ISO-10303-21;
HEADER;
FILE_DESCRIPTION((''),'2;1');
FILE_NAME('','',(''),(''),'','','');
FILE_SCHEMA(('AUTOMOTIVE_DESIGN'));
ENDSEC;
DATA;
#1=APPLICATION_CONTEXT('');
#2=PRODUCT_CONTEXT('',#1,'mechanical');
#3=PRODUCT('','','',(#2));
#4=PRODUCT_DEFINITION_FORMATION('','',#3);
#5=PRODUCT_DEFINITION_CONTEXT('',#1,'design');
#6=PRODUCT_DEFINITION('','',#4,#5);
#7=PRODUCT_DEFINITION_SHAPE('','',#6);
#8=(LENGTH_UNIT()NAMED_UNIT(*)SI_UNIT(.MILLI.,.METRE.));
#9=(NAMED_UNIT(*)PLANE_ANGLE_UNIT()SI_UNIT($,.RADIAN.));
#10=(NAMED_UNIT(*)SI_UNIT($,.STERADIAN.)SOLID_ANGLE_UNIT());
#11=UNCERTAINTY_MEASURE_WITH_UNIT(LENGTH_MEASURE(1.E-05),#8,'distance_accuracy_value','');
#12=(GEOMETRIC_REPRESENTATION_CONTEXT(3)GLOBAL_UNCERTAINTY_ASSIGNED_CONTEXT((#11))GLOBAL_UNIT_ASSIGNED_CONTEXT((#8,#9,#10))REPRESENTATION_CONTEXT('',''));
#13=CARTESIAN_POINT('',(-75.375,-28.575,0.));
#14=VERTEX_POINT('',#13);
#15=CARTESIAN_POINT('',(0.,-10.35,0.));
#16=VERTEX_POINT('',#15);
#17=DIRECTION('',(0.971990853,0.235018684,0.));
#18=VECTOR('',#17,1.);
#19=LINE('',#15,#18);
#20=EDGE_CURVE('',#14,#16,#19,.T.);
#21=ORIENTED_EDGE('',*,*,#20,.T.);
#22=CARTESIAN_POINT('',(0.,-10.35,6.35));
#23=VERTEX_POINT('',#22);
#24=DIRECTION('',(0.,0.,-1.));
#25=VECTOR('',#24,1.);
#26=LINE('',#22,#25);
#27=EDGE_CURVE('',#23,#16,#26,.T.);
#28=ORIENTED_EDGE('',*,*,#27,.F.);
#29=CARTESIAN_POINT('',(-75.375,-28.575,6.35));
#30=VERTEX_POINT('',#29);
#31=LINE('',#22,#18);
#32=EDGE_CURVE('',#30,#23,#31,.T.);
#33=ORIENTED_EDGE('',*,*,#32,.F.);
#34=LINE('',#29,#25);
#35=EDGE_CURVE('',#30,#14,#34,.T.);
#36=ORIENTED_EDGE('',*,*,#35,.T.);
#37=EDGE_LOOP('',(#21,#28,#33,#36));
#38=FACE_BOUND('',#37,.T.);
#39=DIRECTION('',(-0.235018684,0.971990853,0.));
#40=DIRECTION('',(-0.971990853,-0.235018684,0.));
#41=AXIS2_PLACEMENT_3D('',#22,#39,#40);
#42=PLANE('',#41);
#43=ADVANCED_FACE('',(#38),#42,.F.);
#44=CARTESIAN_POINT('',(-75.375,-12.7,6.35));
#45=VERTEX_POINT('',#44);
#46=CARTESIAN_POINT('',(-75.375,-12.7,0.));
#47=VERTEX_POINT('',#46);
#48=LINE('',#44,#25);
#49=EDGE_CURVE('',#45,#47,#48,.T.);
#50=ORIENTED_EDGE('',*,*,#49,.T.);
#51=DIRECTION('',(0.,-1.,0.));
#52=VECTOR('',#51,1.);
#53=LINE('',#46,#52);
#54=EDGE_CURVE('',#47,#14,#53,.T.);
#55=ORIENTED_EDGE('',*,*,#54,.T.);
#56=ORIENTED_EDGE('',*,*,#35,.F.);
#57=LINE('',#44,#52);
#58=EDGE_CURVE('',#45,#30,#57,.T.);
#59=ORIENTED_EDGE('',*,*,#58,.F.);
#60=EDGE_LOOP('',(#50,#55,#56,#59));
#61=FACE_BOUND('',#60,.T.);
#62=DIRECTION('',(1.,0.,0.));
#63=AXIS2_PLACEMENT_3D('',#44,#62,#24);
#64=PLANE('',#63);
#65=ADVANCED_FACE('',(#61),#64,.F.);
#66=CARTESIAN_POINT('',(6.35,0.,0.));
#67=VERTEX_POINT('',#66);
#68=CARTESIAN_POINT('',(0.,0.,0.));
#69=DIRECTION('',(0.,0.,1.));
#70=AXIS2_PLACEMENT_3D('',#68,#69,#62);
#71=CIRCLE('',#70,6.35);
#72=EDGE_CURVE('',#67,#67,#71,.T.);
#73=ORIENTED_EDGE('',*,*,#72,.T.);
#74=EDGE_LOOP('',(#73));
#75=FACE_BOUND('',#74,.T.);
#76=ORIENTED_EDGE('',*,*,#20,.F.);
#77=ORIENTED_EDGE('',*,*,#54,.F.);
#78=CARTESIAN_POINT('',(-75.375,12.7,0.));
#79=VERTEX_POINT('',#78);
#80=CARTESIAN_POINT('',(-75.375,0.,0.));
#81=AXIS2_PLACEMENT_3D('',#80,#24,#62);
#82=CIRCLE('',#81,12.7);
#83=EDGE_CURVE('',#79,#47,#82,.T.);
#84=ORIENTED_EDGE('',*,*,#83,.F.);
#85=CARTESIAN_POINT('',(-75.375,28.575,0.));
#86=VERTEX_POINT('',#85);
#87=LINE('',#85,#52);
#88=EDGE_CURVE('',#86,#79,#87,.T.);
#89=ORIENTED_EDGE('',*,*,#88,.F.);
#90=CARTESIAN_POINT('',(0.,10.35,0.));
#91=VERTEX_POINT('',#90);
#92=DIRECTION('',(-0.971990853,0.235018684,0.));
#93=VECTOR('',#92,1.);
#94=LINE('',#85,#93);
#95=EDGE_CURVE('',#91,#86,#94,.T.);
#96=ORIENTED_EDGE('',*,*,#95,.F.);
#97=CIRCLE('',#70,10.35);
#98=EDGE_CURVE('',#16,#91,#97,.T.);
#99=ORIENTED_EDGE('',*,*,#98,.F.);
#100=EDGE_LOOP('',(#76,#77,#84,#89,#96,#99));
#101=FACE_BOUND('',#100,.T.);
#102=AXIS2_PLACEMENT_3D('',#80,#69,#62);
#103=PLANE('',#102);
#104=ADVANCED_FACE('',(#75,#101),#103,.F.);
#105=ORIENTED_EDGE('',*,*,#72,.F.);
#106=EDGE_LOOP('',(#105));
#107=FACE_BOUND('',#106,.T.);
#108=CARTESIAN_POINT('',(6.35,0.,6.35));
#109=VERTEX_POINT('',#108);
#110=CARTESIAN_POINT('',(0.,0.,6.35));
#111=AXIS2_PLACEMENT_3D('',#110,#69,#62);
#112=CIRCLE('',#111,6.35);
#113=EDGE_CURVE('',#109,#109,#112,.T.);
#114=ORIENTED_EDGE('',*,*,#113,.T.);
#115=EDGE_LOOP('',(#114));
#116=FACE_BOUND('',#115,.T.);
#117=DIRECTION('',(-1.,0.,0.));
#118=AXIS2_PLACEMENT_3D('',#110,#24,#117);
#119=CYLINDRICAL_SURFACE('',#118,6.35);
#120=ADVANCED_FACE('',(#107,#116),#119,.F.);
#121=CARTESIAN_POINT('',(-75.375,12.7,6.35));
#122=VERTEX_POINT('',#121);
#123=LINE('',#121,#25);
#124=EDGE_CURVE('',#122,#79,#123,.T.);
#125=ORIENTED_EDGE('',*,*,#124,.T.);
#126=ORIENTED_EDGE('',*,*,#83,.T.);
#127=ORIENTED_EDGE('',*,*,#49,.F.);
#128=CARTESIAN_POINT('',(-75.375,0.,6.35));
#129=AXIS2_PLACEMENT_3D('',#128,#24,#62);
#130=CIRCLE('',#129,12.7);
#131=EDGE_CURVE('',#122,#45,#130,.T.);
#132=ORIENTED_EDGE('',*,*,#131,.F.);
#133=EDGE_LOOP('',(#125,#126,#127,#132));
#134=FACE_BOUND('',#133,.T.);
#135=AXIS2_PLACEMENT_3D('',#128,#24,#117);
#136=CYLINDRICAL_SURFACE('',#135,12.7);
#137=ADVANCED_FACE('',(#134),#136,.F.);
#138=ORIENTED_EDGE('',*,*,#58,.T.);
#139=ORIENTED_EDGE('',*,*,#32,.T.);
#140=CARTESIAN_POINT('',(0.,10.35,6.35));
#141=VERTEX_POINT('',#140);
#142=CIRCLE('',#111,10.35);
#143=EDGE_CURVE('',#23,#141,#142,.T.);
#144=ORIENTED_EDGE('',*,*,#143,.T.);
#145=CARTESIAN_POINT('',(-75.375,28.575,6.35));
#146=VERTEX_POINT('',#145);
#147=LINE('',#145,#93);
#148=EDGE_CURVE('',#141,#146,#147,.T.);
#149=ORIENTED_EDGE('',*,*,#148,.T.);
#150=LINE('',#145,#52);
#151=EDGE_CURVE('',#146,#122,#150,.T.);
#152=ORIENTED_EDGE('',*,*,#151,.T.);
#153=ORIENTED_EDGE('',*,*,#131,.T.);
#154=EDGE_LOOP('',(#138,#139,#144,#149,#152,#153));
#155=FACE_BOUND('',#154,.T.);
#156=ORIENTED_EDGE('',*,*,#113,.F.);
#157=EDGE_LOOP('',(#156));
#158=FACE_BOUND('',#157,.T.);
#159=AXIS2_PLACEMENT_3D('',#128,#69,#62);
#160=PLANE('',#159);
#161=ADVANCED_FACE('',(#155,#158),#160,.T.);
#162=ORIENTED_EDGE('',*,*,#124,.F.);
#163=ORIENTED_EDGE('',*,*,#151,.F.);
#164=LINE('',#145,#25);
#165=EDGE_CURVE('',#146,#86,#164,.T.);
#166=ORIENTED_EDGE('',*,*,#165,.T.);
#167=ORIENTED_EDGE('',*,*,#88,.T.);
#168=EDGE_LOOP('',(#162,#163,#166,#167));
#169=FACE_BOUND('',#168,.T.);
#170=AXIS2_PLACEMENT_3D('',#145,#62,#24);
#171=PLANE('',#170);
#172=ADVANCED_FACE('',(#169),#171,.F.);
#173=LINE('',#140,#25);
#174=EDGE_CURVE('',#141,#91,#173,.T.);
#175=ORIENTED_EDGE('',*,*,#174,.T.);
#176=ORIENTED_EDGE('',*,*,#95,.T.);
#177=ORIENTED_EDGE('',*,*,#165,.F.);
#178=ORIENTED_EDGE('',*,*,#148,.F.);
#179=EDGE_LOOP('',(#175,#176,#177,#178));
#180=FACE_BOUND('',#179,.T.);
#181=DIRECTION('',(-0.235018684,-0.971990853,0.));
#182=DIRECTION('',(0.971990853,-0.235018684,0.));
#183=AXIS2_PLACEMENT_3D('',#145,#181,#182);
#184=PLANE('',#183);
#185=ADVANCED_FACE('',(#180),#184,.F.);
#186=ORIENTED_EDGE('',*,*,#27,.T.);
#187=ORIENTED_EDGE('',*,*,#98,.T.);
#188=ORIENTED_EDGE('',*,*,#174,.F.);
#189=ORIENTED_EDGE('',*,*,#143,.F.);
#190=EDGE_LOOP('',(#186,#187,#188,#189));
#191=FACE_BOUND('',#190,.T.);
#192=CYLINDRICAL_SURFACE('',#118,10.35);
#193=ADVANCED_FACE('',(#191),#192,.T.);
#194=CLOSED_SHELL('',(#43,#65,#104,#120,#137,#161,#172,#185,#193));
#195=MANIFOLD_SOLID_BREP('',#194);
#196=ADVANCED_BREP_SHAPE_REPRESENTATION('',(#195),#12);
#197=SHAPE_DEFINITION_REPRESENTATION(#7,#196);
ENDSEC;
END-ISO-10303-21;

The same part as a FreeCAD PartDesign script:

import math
import FreeCAD as App
import Part
import Sketcher

V = App.Vector
Q = App.Units.Quantity

doc = App.newDocument("Part")
params = doc.addObject("Spreadsheet::Sheet", "Params")
for row, (alias, value) in enumerate([
    ("sketch1_diameter", "0.5 in"),
    ("sketch1_radius", "0.5 in"),
    ("sketch1_height", "0.625 in"),
    ("pad1_length", "0.25 in"),
], start=1):
    params.set(f"A{row}", alias)
    params.set(f"B{row}", "=" + value)
    params.setAlias(f"B{row}", alias)

body = doc.addObject("PartDesign::Body", "Body")

# Sketch on XY plane
sketch1 = body.newObject("Sketcher::SketchObject", "Sketch")
sketch1.AttachmentSupport = (doc.getObject("XY_Plane"), [""])
sketch1.MapMode = "FlatFace"
sketch1.addGeometry(Part.LineSegment(V(0, 10, 0), V(-75, 29, 0)), False)
sketch1.addGeometry(Part.LineSegment(V(-75, 29, 0), V(-75, 13, 0)), False)
sketch1.addGeometry(Part.ArcOfCircle(Part.Circle(V(-75, 0, 0), V(0, 0, 1), 13), math.radians(-90), math.radians(90)), False)
sketch1.addGeometry(Part.LineSegment(V(-75, -13, 0), V(-75, -29, 0)), False)
sketch1.addGeometry(Part.LineSegment(V(-75, -29, 0), V(0, -10, 0)), False)
sketch1.addGeometry(Part.ArcOfCircle(Part.Circle(V(0, 0, 0), V(0, 0, 1), 10), math.radians(-90), math.radians(90)), False)
sketch1.addGeometry(Part.Circle(V(0, 0, 0), V(0, 0, 1), 6), False)
sketch1.addConstraint(Sketcher.Constraint("Coincident", 0, 2, 1, 1))
sketch1.addConstraint(Sketcher.Constraint("Coincident", 1, 2, 2, 2))
sketch1.addConstraint(Sketcher.Constraint("Coincident", 2, 1, 3, 1))
sketch1.addConstraint(Sketcher.Constraint("Coincident", 3, 2, 4, 1))
sketch1.addConstraint(Sketcher.Constraint("Coincident", 4, 2, 5, 1))
sketch1.addConstraint(Sketcher.Constraint("Coincident", 5, 2, 0, 1))
sketch1.addConstraint(Sketcher.Constraint("Vertical", 1))
sketch1.addConstraint(Sketcher.Constraint("Vertical", 3))
sketch1.addConstraint(Sketcher.Constraint("Coincident", 5, 3, -1, 1))
sketch1.addConstraint(Sketcher.Constraint("Coincident", 6, 3, -1, 1))
sketch1.addConstraint(Sketcher.Constraint("Symmetric", 1, 2, 2, 1, -1))
sketch1.addConstraint(Sketcher.Constraint("PointOnObject", 4, 2, -2))
sketch1.addConstraint(Sketcher.Constraint("PointOnObject", 5, 2, -2))
sketch1.addConstraint(Sketcher.Constraint("Vertical", 2, 3, 0, 2))
sketch1.addConstraint(Sketcher.Constraint("Equal", 1, 3))
sketch1.addConstraint(Sketcher.Constraint("Diameter", 6, Q("0.5 in")))
sketch1.addConstraint(Sketcher.Constraint("Radius", 2, Q("0.5 in")))
sketch1.addConstraint(Sketcher.Constraint("DistanceY", 1, 2, 1, 1, Q("0.625 in")))
sketch1.addConstraint(Sketcher.Constraint("Radius", 5, 10.35))
sketch1.addConstraint(Sketcher.Constraint("DistanceX", 2, 3, -1, 1, 75.375))
sketch1.setExpression("Constraints[15]", "Params.sketch1_diameter")
sketch1.setExpression("Constraints[16]", "Params.sketch1_radius")
sketch1.setExpression("Constraints[17]", "Params.sketch1_height")
pad1 = body.newObject("PartDesign::Pad", "Pad")
pad1.Profile = sketch1
pad1.setExpression("Length", "Params.pad1_length")

doc.recompute()
